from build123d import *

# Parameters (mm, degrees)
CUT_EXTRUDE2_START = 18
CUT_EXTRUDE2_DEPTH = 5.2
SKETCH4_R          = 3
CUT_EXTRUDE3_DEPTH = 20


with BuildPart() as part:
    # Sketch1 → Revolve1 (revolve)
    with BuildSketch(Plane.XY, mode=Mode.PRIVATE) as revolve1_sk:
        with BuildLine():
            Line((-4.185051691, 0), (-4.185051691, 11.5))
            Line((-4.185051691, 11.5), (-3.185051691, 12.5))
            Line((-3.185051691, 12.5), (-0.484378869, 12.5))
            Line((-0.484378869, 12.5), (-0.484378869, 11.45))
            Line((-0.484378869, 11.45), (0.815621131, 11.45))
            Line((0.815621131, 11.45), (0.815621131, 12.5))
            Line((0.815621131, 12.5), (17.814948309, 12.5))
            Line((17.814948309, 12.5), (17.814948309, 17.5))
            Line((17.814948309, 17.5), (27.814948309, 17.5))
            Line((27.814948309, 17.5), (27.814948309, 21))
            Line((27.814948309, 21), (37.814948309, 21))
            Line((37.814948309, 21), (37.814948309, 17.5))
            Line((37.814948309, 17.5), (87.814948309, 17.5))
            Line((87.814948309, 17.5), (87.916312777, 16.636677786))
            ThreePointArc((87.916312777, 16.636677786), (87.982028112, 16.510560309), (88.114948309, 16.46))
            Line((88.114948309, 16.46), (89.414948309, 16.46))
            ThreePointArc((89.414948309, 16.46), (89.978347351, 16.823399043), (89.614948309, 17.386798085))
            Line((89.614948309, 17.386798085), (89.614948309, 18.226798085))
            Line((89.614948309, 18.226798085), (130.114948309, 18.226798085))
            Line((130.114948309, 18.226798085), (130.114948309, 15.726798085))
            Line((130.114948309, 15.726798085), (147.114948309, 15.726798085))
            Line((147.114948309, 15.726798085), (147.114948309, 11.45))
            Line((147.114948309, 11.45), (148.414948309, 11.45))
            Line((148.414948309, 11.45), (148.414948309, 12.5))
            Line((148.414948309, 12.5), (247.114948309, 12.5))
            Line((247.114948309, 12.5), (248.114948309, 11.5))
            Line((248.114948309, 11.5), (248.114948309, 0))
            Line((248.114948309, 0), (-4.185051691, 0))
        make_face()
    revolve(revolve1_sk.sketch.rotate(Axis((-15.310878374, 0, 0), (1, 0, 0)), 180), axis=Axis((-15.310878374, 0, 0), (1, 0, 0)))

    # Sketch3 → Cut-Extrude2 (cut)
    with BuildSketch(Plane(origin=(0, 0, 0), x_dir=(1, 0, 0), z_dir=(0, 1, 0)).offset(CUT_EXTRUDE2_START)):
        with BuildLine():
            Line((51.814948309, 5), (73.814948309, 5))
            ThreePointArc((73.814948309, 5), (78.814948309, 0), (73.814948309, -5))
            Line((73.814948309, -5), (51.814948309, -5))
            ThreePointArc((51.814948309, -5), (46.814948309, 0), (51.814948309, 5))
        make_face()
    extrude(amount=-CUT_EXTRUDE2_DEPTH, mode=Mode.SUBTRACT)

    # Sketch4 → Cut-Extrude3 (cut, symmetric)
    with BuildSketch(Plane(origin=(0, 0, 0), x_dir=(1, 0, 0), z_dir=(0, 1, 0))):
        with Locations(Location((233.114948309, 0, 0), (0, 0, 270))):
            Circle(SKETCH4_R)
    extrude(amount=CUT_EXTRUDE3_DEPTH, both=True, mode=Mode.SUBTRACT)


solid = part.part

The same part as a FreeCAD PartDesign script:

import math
import FreeCAD as App
import Part
import Sketcher

V = App.Vector
Q = App.Units.Quantity

doc = App.newDocument("Part")
body = doc.addObject("PartDesign::Body", "Body")

# Sketch on XY plane
sketch1 = body.newObject("Sketcher::SketchObject", "Sketch")
sketch1.AttachmentSupport = (doc.getObject("XY_Plane"), [""])
sketch1.MapMode = "FlatFace"
sketch1.addGeometry(Part.LineSegment(V(-4.19, 11.5, 0), V(-4.19, 0, 0)), False)
sketch1.addGeometry(Part.LineSegment(V(-4.19, 0, 0), V(248.11, 0, 0)), False)
sketch1.addGeometry(Part.LineSegment(V(248.11, 0, 0), V(248.11, 11.5, 0)), False)
sketch1.addGeometry(Part.LineSegment(V(248.11, 11.5, 0), V(247.11, 12.5, 0)), False)
sketch1.addGeometry(Part.LineSegment(V(247.11, 12.5, 0), V(148.41, 12.5, 0)), False)
sketch1.addGeometry(Part.LineSegment(V(148.41, 12.5, 0), V(148.41, 11.45, 0)), False)
sketch1.addGeometry(Part.LineSegment(V(148.41, 11.45, 0), V(147.11, 11.45, 0)), False)
sketch1.addGeometry(Part.LineSegment(V(147.11, 11.45, 0), V(147.11, 15.73, 0)), False)
sketch1.addGeometry(Part.LineSegment(V(147.11, 15.73, 0), V(130.11, 15.73, 0)), False)
sketch1.addGeometry(Part.LineSegment(V(130.11, 15.73, 0), V(130.11, 18.23, 0)), False)
sketch1.addGeometry(Part.LineSegment(V(130.11, 18.23, 0), V(89.61, 18.23, 0)), False)
sketch1.addGeometry(Part.LineSegment(V(89.61, 18.23, 0), V(89.61, 17.39, 0)), False)
sketch1.addGeometry(Part.ArcOfCircle(Part.Circle(V(89.51, 16.92, 0), V(0, 0, 1), 0.47), math.radians(-102), math.radians(78)), False)
sketch1.addGeometry(Part.LineSegment(V(89.41, 16.46, 0), V(88.11, 16.46, 0)), False)
sketch1.addGeometry(Part.ArcOfCircle(Part.Circle(V(88.11, 16.66, 0), V(0, 0, 1), 0.2), math.radians(-173), math.radians(-90)), False)
sketch1.addGeometry(Part.LineSegment(V(87.92, 16.64, 0), V(87.81, 17.5, 0)), False)
sketch1.addGeometry(Part.LineSegment(V(87.81, 17.5, 0), V(37.81, 17.5, 0)), False)
sketch1.addGeometry(Part.LineSegment(V(37.81, 17.5, 0), V(37.81, 21, 0)), False)
sketch1.addGeometry(Part.LineSegment(V(37.81, 21, 0), V(27.81, 21, 0)), False)
sketch1.addGeometry(Part.LineSegment(V(27.81, 21, 0), V(27.81, 17.5, 0)), False)
sketch1.addGeometry(Part.LineSegment(V(27.81, 17.5, 0), V(17.81, 17.5, 0)), False)
sketch1.addGeometry(Part.LineSegment(V(17.81, 17.5, 0), V(17.81, 12.5, 0)), False)
sketch1.addGeometry(Part.LineSegment(V(17.81, 12.5, 0), V(0.82, 12.5, 0)), False)
sketch1.addGeometry(Part.LineSegment(V(0.82, 12.5, 0), V(0.82, 11.45, 0)), False)
sketch1.addGeometry(Part.LineSegment(V(0.82, 11.45, 0), V(-0.48, 11.45, 0)), False)
sketch1.addGeometry(Part.LineSegment(V(-0.48, 11.45, 0), V(-0.48, 12.5, 0)), False)
sketch1.addGeometry(Part.LineSegment(V(-0.48, 12.5, 0), V(-3.19, 12.5, 0)), False)
sketch1.addGeometry(Part.LineSegment(V(-3.19, 12.5, 0), V(-4.19, 11.5, 0)), False)
sketch1.addConstraint(Sketcher.Constraint("Coincident", 0, 2, 1, 1))
sketch1.addConstraint(Sketcher.Constraint("Coincident", 1, 2, 2, 1))
sketch1.addConstraint(Sketcher.Constraint("Coincident", 2, 2, 3, 1))
sketch1.addConstraint(Sketcher.Constraint("Coincident", 3, 2, 4, 1))
sketch1.addConstraint(Sketcher.Constraint("Coincident", 4, 2, 5, 1))
sketch1.addConstraint(Sketcher.Constraint("Coincident", 5, 2, 6, 1))
sketch1.addConstraint(Sketcher.Constraint("Coincident", 6, 2, 7, 1))
sketch1.addConstraint(Sketcher.Constraint("Coincident", 7, 2, 8, 1))
sketch1.addConstraint(Sketcher.Constraint("Coincident", 8, 2, 9, 1))
sketch1.addConstraint(Sketcher.Constraint("Coincident", 9, 2, 10, 1))
sketch1.addConstraint(Sketcher.Constraint("Coincident", 10, 2, 11, 1))
sketch1.addConstraint(Sketcher.Constraint("Coincident", 11, 2, 12, 2))
sketch1.addConstraint(Sketcher.Constraint("Coincident", 12, 1, 13, 1))
sketch1.addConstraint(Sketcher.Constraint("Tangent", 13, 2, 14, 2))
sketch1.addConstraint(Sketcher.Constraint("Tangent", 14, 1, 15, 1))
sketch1.addConstraint(Sketcher.Constraint("Coincident", 15, 2, 16, 1))
sketch1.addConstraint(Sketcher.Constraint("Coincident", 16, 2, 17, 1))
sketch1.addConstraint(Sketcher.Constraint("Coincident", 17, 2, 18, 1))
sketch1.addConstraint(Sketcher.Constraint("Coincident", 18, 2, 19, 1))
sketch1.addConstraint(Sketcher.Constraint("Coincident", 19, 2, 20, 1))
sketch1.addConstraint(Sketcher.Constraint("Coincident", 20, 2, 21, 1))
sketch1.addConstraint(Sketcher.Constraint("Coincident", 21, 2, 22, 1))
sketch1.addConstraint(Sketcher.Constraint("Coincident", 22, 2, 23, 1))
sketch1.addConstraint(Sketcher.Constraint("Coincident", 23, 2, 24, 1))
sketch1.addConstraint(Sketcher.Constraint("Coincident", 24, 2, 25, 1))
sketch1.addConstraint(Sketcher.Constraint("Coincident", 25, 2, 26, 1))
sketch1.addConstraint(Sketcher.Constraint("Coincident", 26, 2, 27, 1))
sketch1.addConstraint(Sketcher.Constraint("Coincident", 27, 2, 0, 1))
sketch1.addConstraint(Sketcher.Constraint("Vertical", 0))
sketch1.addConstraint(Sketcher.Constraint("Horizontal", 1))
sketch1.addConstraint(Sketcher.Constraint("Vertical", 2))
sketch1.addConstraint(Sketcher.Constraint("Horizontal", 4))
sketch1.addConstraint(Sketcher.Constraint("Vertical", 5))
sketch1.addConstraint(Sketcher.Constraint("Horizontal", 6))
sketch1.addConstraint(Sketcher.Constraint("Vertical", 7))
sketch1.addConstraint(Sketcher.Constraint("Horizontal", 8))
sketch1.addConstraint(Sketcher.Constraint("Vertical", 9))
sketch1.addConstraint(Sketcher.Constraint("Horizontal", 10))
sketch1.addConstraint(Sketcher.Constraint("Vertical", 11))
sketch1.addConstraint(Sketcher.Constraint("Horizontal", 13))
sketch1.addConstraint(Sketcher.Constraint("Horizontal", 16))
sketch1.addConstraint(Sketcher.Constraint("Vertical", 17))
sketch1.addConstraint(Sketcher.Constraint("Horizontal", 18))
sketch1.addConstraint(Sketcher.Constraint("Vertical", 19))
sketch1.addConstraint(Sketcher.Constraint("Horizontal", 20))
sketch1.addConstraint(Sketcher.Constraint("Vertical", 21))
sketch1.addConstraint(Sketcher.Constraint("Horizontal", 22))
sketch1.addConstraint(Sketcher.Constraint("Vertical", 23))
sketch1.addConstraint(Sketcher.Constraint("Horizontal", 24))
sketch1.addConstraint(Sketcher.Constraint("Vertical", 25))
sketch1.addConstraint(Sketcher.Constraint("Horizontal", 26))
sketch1.addConstraint(Sketcher.Constraint("PointOnObject", 0, 2, -1))
sketch1.addConstraint(Sketcher.Constraint("Perpendicular", 3, 27))
sketch1.addConstraint(Sketcher.Constraint("Horizontal", 16, 2, 19, 2))
sketch1.addConstraint(Sketcher.Constraint("Horizontal", 4, 2, 21, 2))
sketch1.addConstraint(Sketcher.Constraint("Horizontal", 6, 2, 23, 2))
sketch1.addConstraint(Sketcher.Constraint("Horizontal", 22, 2, 25, 2))
sketch1.addConstraint(Sketcher.Constraint("Horizontal", 2, 2, 27, 2))
sketch1.addConstraint(Sketcher.Constraint("Equal", 6, 13))
sketch1.addConstraint(Sketcher.Constraint("Equal", 18, 20))
sketch1.addConstraint(Sketcher.Constraint("Equal", 13, 24))
sketch1.addConstraint(Sketcher.Constraint("Equal", 3, 27))
sketch1.addConstraint(Sketcher.Constraint("Radius", 14, Q("0.2 mm")))
sketch1.addConstraint(Sketcher.Constraint("DistanceX", 8, 2, 8, 1, Q("17 mm")))
sketch1.addConstraint(Sketcher.Constraint("DistanceX", 16, 2, 16, 1, Q("50 mm")))
sketch1.addConstraint(Sketcher.Constraint("DistanceX", 18, 2, 18, 1, Q("10 mm")))
sketch1.addConstraint(Sketcher.Constraint("DistanceY", 21, 2, 21, 1, Q("5 mm")))
sketch1.addConstraint(Sketcher.Constraint("DistanceX", 1, 1, 1, 2, Q("252.3 mm")))
sketch1.addConstraint(Sketcher.Constraint("DistanceX", 4, 2, 4, 1, Q("98.7 mm")))
sketch1.addConstraint(Sketcher.Constraint("DistanceX", 6, 2, 6, 1, Q("1.3 mm")))
sketch1.addConstraint(Sketcher.Constraint("DistanceX", 10, 2, 10, 1, Q("40.5 mm")))
sketch1.addConstraint(Sketcher.Constraint("DistanceY", 0, 2, 0, 1, Q("11.5 mm")))
sketch1.addConstraint(Sketcher.Constraint("DistanceY", 9, 1, 9, 2, Q("2.5 mm")))
sketch1.addConstraint(Sketcher.Constraint("DistanceY", 17, 1, 17, 2, Q("3.5 mm")))
sketch1.addConstraint(Sketcher.Constraint("DistanceY", -1, 1, 17, 2, Q("21 mm")))
sketch1.addConstraint(Sketcher.Constraint("DistanceX", 14, 3, 1, 2, Q("160 mm")))
sketch1.addConstraint(Sketcher.Constraint("DistanceX", 0, 2, 16, 2, Q("42 mm")))
sketch1.addConstraint(Sketcher.Constraint("DistanceY", 5, 2, 5, 1, Q("1.05 mm")))
sketch1.addConstraint(Sketcher.Constraint("DistanceY", 11, 2, 11, 1, Q("0.84 mm")))
sketch1.addConstraint(Sketcher.Constraint("DistanceX", 14, 3, 12, 3, Q("1.4 mm")))
sketch1.addConstraint(Sketcher.Constraint("DistanceY", -1, 1, 14, 3, Q("16.66 mm")))
sketch1.addConstraint(Sketcher.Constraint("DistanceY", 7, 1, 7, 2, Q("4.276798 mm")))
sketch1.addConstraint(Sketcher.Constraint("DistanceX", 22, 2, 22, 1, Q("16.999327 mm")))
sketch1.addConstraint(Sketcher.Constraint("DistanceX", -1, 1, 12, 3, Q("89.514948 mm")))
revolution = body.newObject("PartDesign::Revolution", "Revolution")
revolution.Profile = sketch1
revolution.ReferenceAxis = (sketch1, ["H_Axis"])
revolution.Angle = 360

# Sketch on XZ plane
sketch2 = body.newObject("Sketcher::SketchObject", "Sketch001")
sketch2.AttachmentSupport = (doc.getObject("XZ_Plane"), [""])
sketch2.MapMode = "FlatFace"
sketch2.AttachmentOffset = App.Placement(V(0, 0, -18), App.Rotation())
sketch2.addGeometry(Part.LineSegment(V(74, -5, 0), V(52, -5, 0)), False)
sketch2.addGeometry(Part.ArcOfCircle(Part.Circle(V(52, 0, 0), V(0, 0, 1), 5), math.radians(90), math.radians(270)), False)
sketch2.addGeometry(Part.LineSegment(V(52, 5, 0), V(74, 5, 0)), False)
sketch2.addGeometry(Part.ArcOfCircle(Part.Circle(V(74, 0, 0), V(0, 0, 1), 5), math.radians(-90), math.radians(90)), False)
sketch2.addConstraint(Sketcher.Constraint("Tangent", 0, 2, 1, 2))
sketch2.addConstraint(Sketcher.Constraint("Tangent", 1, 1, 2, 1))
sketch2.addConstraint(Sketcher.Constraint("Tangent", 2, 2, 3, 2))
sketch2.addConstraint(Sketcher.Constraint("Tangent", 3, 1, 0, 1))
sketch2.addConstraint(Sketcher.Constraint("Horizontal", 0))
sketch2.addConstraint(Sketcher.Constraint("Horizontal", 2))
sketch2.addConstraint(Sketcher.Constraint("PointOnObject", 1, 3, -1))
sketch2.addConstraint(Sketcher.Constraint("Radius", 1, Q("5 mm")))
sketch2.addConstraint(Sketcher.Constraint("DistanceX", 0, 2, 0, 1, Q("22 mm")))
sketch2.addConstraint(Sketcher.Constraint("DistanceX", -1, 1, 1, 3, Q("51.814948 mm")))
pocket1 = body.newObject("PartDesign::Pocket", "Pocket")
pocket1.Profile = sketch2
pocket1.Length = 5.2
pocket1.Reversed = True

# Sketch on XZ plane
sketch3 = body.newObject("Sketcher::SketchObject", "Sketch002")
sketch3.AttachmentSupport = (doc.getObject("XZ_Plane"), [""])
sketch3.MapMode = "FlatFace"
sketch3.addGeometry(Part.Circle(V(233.1, 0, 0), V(0, 0, 1), 3), False)
sketch3.addConstraint(Sketcher.Constraint("PointOnObject", 0, 3, -1))
sketch3.addConstraint(Sketcher.Constraint("Diameter", 0, Q("6 mm")))
sketch3.addConstraint(Sketcher.Constraint("DistanceX", -1, 1, 0, 3, Q("233.114948 mm")))
pocket2 = body.newObject("PartDesign::Pocket", "Pocket001")
pocket2.Profile = sketch3
pocket2.Length = 40
pocket2.Midplane = True

doc.recompute()
